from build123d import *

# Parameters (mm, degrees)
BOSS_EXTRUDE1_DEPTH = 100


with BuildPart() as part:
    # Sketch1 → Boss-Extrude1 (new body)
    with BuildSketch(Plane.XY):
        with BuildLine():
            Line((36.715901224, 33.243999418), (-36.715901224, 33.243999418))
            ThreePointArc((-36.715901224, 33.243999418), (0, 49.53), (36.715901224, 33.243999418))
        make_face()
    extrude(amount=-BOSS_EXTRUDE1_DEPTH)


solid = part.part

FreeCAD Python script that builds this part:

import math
import FreeCAD as App
import Part
import Sketcher

V = App.Vector

doc = App.newDocument("Part")
body = doc.addObject("PartDesign::Body", "Body")

sketch1 = body.newObject("Sketcher::SketchObject", "Sketch")
sketch1.AttachmentSupport = (doc.getObject("XY_Plane"), [""])
sketch1.MapMode = "FlatFace"
sketch1.addGeometry(Part.LineSegment(V(-37, 33, 0), V(37, 33, 0)), False)
sketch1.addGeometry(Part.ArcOfCircle(Part.Circle(V(0, 0, 0), V(0, 0, 1), 50), math.radians(42), math.radians(138)), False)
sketch1.addConstraint(Sketcher.Constraint("Coincident", 0, 1, 1, 2))
sketch1.addConstraint(Sketcher.Constraint("Coincident", 1, 1, 0, 2))
sketch1.addConstraint(Sketcher.Constraint("Horizontal", 0))
sketch1.addConstraint(Sketcher.Constraint("Coincident", 1, 3, -1, 1))
sketch1.addConstraint(Sketcher.Constraint("Radius", 1, 49.53))
sketch1.addConstraint(Sketcher.Constraint("DistanceY", -1, 1, 0, 1, 33.243999))
pad1 = body.newObject("PartDesign::Pad", "Pad")
pad1.Profile = sketch1
pad1.Length = 100
pad1.Reversed = True

doc.recompute()
